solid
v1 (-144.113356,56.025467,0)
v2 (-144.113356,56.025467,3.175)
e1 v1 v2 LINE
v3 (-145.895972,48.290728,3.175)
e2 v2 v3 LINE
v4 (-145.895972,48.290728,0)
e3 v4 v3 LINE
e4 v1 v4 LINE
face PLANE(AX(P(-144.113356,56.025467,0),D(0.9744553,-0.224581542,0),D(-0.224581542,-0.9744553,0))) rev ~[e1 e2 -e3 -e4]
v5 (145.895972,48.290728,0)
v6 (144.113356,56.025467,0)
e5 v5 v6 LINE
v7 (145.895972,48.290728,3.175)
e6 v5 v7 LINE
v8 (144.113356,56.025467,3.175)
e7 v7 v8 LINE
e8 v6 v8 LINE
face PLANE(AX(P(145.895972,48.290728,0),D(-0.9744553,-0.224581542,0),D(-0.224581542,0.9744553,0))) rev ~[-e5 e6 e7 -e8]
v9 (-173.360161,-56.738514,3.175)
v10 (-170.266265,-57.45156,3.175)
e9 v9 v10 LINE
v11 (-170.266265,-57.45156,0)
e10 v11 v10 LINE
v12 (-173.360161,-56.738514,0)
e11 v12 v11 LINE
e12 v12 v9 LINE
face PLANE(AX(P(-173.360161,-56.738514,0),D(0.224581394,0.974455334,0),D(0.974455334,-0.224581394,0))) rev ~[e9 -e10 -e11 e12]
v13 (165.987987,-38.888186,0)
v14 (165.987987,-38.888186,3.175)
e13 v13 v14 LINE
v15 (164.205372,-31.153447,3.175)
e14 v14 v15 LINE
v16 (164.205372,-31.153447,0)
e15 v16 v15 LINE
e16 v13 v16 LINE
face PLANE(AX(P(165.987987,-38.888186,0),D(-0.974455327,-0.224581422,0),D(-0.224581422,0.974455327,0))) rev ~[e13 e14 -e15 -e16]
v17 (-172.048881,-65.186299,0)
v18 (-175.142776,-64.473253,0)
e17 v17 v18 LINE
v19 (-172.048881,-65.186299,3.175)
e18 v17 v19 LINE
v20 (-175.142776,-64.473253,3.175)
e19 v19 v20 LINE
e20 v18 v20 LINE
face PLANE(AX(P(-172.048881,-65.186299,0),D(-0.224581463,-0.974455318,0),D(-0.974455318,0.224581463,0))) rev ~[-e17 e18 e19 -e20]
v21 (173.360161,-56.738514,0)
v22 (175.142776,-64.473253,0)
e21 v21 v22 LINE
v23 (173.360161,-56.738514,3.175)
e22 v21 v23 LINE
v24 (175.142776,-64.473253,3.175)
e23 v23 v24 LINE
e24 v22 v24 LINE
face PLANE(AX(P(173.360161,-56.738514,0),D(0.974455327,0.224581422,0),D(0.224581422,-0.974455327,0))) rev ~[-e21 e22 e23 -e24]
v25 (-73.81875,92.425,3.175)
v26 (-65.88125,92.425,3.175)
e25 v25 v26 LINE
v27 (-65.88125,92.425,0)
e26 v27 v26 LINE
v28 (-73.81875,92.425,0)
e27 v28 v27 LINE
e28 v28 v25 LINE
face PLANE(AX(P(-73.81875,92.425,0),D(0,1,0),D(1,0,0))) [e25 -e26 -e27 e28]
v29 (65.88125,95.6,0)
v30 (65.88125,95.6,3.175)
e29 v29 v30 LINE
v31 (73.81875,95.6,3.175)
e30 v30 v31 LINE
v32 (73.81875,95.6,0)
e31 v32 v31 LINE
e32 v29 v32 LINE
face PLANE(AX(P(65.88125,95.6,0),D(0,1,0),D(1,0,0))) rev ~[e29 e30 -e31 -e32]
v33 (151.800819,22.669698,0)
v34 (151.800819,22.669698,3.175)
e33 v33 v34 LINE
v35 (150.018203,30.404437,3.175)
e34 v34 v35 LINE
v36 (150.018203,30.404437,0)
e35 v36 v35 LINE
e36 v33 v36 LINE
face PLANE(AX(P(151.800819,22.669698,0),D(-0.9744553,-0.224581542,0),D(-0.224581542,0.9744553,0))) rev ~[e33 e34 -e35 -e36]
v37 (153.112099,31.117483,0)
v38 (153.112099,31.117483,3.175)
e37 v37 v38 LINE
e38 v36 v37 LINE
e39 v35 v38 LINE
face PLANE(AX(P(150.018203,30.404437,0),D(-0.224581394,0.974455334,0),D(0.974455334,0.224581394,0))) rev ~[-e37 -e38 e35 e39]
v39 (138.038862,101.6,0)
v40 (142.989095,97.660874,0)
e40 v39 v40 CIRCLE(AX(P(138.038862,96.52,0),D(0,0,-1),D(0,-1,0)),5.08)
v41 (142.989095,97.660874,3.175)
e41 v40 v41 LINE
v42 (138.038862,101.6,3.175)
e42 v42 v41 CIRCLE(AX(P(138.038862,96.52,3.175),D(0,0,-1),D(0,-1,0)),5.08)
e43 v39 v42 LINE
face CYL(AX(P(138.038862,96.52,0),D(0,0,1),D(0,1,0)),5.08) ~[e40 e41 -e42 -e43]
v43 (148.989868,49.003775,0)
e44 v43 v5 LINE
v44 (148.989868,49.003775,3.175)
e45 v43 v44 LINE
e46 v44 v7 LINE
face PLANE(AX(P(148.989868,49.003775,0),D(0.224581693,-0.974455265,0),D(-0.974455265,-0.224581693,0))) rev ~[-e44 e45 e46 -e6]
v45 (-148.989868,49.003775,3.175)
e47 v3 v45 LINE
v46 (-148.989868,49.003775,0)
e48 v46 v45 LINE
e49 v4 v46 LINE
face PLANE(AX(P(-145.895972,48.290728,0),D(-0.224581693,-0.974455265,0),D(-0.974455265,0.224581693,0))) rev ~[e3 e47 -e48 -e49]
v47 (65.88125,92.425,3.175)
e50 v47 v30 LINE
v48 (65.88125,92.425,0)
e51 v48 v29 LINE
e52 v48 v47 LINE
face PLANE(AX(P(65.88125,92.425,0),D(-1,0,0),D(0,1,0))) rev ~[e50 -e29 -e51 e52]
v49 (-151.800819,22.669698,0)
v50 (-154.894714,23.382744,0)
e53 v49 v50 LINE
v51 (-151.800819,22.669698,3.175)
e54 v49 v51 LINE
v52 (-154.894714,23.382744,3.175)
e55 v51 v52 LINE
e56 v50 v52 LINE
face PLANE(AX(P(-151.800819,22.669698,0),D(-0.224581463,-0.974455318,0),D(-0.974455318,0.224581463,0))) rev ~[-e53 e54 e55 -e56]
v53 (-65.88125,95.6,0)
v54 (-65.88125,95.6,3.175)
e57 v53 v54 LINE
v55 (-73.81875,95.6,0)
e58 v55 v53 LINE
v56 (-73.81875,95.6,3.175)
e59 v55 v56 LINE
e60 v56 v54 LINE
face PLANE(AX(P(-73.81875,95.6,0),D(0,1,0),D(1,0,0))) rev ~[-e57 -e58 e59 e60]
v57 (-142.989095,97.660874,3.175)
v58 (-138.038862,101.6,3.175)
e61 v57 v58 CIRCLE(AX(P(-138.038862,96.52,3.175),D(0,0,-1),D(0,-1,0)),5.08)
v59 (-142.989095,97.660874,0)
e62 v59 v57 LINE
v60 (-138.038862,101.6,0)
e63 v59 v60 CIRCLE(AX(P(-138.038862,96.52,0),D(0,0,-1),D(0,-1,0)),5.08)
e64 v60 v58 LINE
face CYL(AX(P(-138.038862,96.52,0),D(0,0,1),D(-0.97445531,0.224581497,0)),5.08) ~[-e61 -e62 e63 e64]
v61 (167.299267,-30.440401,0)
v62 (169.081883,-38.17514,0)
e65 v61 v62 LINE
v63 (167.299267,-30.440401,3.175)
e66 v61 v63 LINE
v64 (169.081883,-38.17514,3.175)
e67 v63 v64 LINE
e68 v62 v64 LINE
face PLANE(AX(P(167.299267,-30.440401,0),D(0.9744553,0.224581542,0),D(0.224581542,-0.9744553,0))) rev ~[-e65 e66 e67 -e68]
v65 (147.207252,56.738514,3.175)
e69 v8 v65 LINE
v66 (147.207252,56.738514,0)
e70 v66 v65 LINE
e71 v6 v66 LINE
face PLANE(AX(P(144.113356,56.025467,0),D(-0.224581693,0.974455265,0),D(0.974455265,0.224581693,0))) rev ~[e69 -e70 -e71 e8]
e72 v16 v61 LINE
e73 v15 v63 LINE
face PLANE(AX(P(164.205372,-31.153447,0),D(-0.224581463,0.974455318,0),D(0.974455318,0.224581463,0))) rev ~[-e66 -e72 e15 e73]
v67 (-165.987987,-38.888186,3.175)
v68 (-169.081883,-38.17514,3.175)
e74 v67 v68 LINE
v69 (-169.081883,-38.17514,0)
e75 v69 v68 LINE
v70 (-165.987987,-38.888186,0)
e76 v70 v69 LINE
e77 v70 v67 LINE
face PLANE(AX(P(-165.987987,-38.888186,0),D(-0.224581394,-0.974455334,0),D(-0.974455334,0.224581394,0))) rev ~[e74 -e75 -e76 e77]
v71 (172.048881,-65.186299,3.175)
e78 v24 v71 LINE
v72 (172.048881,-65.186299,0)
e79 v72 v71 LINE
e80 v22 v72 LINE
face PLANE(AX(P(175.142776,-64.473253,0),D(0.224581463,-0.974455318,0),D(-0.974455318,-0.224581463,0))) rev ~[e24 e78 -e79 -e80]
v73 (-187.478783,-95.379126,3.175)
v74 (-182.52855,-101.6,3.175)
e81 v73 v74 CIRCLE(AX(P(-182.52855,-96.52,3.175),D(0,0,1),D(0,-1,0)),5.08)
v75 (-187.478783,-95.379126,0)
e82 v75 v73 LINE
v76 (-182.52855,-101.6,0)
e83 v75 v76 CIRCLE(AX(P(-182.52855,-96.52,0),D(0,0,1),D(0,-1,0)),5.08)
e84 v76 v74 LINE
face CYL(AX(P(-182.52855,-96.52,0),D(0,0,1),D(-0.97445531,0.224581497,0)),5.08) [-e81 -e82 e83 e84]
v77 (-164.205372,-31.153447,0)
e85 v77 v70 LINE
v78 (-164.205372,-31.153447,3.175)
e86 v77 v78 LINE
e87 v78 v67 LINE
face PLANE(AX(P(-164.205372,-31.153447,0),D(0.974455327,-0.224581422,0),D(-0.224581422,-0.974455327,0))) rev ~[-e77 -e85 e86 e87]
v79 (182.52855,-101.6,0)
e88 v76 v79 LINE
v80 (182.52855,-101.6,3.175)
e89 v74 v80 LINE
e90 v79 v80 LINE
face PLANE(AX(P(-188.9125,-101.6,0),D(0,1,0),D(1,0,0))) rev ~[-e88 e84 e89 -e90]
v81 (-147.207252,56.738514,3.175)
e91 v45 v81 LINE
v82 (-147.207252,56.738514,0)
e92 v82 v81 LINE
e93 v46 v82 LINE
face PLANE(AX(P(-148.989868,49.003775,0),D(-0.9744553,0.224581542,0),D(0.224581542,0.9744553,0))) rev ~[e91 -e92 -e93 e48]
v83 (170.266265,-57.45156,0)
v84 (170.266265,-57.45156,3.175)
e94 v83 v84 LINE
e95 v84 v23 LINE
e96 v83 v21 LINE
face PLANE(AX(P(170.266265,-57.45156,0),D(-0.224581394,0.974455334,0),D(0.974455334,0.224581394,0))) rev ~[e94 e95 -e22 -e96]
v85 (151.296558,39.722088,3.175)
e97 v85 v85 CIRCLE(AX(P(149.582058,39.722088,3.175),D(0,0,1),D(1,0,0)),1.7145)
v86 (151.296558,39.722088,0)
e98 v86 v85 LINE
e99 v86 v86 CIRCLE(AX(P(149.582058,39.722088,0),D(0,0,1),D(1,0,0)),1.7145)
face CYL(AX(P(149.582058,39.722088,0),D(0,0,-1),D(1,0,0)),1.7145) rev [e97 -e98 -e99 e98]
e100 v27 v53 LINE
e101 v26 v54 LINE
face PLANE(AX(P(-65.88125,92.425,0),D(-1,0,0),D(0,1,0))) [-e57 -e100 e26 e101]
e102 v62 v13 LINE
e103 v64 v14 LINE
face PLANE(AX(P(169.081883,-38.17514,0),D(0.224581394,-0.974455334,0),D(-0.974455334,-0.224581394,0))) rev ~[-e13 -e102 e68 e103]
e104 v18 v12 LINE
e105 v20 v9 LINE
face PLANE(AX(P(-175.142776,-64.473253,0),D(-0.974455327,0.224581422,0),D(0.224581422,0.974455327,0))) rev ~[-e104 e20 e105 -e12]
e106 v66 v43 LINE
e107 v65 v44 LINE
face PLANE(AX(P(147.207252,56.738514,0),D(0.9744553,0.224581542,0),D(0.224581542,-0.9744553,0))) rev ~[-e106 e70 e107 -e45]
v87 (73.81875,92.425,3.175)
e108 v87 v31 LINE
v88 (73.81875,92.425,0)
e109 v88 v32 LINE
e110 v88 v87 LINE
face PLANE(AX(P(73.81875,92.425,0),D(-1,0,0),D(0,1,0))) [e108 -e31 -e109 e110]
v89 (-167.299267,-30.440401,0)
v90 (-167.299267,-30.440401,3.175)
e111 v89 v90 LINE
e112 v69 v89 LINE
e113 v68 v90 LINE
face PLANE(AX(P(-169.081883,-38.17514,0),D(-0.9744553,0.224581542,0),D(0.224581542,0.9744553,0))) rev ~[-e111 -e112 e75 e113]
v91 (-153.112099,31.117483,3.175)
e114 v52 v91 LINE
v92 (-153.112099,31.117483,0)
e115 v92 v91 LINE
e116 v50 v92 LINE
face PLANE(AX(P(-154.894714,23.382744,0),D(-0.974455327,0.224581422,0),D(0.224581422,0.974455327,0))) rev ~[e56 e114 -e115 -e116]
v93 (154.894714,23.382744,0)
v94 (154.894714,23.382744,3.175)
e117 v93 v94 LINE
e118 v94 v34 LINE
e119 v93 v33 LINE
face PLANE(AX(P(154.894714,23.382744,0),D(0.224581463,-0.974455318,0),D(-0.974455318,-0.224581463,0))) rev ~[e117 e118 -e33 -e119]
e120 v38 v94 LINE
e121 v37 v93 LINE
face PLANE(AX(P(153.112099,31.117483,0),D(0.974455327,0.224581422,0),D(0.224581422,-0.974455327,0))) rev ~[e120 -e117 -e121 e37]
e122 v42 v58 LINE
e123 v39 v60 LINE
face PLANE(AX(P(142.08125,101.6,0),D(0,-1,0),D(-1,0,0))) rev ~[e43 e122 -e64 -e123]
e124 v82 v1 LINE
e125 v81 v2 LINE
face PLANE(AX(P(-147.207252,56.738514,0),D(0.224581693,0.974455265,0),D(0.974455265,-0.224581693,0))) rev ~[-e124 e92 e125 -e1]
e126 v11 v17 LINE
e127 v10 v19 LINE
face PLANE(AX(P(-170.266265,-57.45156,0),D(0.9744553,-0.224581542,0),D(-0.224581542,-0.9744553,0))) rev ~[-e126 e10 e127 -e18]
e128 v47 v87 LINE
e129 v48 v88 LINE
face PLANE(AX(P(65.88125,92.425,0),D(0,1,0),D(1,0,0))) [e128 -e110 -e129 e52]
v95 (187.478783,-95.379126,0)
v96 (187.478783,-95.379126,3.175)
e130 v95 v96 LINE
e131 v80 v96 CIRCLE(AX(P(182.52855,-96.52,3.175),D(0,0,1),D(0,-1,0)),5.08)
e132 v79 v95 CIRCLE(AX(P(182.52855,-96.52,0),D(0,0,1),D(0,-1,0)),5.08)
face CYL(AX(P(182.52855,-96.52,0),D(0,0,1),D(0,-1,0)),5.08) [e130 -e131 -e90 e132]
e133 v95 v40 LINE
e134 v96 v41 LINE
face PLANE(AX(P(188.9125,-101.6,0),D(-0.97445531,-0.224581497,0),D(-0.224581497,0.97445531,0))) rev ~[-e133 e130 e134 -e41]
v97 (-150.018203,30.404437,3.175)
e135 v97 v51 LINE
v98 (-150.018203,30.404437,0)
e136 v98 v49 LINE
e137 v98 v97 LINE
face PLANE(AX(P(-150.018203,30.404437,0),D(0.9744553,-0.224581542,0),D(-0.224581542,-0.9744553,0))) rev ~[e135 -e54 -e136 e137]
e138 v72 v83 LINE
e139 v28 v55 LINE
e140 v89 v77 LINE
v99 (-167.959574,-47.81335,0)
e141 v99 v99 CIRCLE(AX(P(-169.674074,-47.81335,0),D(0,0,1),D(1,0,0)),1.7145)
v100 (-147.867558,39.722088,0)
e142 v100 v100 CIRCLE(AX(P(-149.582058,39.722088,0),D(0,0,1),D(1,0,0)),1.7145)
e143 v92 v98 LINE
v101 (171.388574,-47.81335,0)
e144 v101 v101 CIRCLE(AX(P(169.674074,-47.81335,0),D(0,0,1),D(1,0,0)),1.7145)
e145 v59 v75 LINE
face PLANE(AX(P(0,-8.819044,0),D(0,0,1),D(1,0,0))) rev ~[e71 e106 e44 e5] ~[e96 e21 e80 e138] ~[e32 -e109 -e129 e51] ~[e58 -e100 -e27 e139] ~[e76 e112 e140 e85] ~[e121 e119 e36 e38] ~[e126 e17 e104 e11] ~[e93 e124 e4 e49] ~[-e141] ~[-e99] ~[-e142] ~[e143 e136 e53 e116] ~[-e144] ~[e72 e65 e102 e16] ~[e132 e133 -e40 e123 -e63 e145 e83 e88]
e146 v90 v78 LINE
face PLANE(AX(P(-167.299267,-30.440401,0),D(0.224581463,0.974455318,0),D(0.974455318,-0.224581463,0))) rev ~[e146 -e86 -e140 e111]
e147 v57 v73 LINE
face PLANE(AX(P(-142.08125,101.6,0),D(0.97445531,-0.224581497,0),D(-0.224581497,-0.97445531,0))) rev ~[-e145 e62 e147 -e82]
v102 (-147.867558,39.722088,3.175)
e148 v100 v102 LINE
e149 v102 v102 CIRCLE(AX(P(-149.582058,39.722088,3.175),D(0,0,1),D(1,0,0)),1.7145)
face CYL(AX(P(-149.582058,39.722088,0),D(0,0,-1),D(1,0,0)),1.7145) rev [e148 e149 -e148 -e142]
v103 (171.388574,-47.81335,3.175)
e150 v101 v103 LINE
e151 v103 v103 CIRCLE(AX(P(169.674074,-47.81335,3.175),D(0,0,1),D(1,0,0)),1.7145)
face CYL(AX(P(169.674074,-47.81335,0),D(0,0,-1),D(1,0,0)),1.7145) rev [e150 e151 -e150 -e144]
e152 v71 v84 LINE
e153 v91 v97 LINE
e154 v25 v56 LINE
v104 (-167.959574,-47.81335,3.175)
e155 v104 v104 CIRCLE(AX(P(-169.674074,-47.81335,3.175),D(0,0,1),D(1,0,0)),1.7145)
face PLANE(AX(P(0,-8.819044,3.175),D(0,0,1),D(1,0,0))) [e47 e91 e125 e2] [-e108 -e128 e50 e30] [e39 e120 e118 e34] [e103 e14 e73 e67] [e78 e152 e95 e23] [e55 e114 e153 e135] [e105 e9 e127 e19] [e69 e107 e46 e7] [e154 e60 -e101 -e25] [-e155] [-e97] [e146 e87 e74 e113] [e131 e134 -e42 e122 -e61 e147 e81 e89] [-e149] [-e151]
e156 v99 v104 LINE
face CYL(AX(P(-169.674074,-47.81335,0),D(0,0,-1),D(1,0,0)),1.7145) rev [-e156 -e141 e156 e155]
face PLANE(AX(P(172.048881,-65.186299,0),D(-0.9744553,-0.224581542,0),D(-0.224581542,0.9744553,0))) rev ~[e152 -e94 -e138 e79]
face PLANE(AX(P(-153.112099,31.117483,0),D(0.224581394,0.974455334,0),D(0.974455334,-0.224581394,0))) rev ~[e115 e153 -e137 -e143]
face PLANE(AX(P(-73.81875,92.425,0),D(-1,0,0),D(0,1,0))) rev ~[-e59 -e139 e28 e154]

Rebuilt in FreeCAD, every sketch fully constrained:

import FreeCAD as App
import Part
import Sketcher
from FreeCAD import Vector
Q = App.Units.Quantity


def edges_at(feature, points):
    """Names of the edges that pass closest to the given points."""
    edges = feature.Shape.Edges
    near = lambda p: min(range(len(edges)), key=lambda i: edges[i].distToShape(Part.Vertex(*p))[0])
    return sorted({f"Edge{near(p) + 1}" for p in points})


def add_polygon(sketch, points):
    """Adds a closed chain of lines whose ends are joined by coincident constraints."""
    first, n = sketch.GeometryCount, len(points)
    for a, b in zip(points, points[1:] + points[:1]):
        sketch.addGeometry(Part.LineSegment(App.Vector(*a, 0), App.Vector(*b, 0)), False)
    for i in range(n):
        sketch.addConstraint(Sketcher.Constraint("Coincident", first + i, 2, first + (i + 1) % n, 1))

doc = App.newDocument("Part")
params = doc.addObject("Spreadsheet::Sheet", "Params")
for row, (alias, value) in enumerate([
    ("sketch1_diameter", "0.135 in"),
    ("sketch1_width", "14.875 in"),
    ("sketch1_width2", "11.1875 in"),
    ("sketch1_width3", "0.3125 in"),
    ("sketch1_height", "0.125 in"),
    ("pad1_length", "0.125 in"),
    ("fillet_radius", "0.2 in"),
], start=1):
    params.set(f"A{row}", alias)
    params.set(f"B{row}", "=" + value)
    params.setAlias(f"B{row}", alias)

body = doc.addObject("PartDesign::Body", "Body")

sketch1 = body.newObject("Sketcher::SketchObject", "Sketch")
sketch1.AttachmentSupport = (doc.getObject("XY_Plane"), [""])
sketch1.MapMode = "FlatFace"
add_polygon(sketch1, [(-142.1, 101.6), (-188.9, -101.6), (188.9, -101.6), (142.1, 101.6)])
add_polygon(sketch1, [(-170.3, -57.5), (-172, -65.2), (-175.1, -64.5), (-173.4, -56.7)])
sketch1.addGeometry(Part.Circle(Vector(-169.7, -47.8, 0), Vector(0, 0, 1), 1.7), False)
add_polygon(sketch1, [(-166, -38.9), (-169.1, -38.2), (-167.3, -30.4), (-164.2, -31.2)])
add_polygon(sketch1, [(175.1, -64.5), (172, -65.2), (170.3, -57.5), (173.4, -56.7)])
sketch1.addGeometry(Part.Circle(Vector(169.7, -47.8, 0), Vector(0, 0, 1), 1.7), False)
add_polygon(sketch1, [(164.2, -31.2), (167.3, -30.4), (169.1, -38.2), (166, -38.9)])
add_polygon(sketch1, [(-153.1, 31.1), (-150, 30.4), (-151.8, 22.7), (-154.9, 23.4)])
sketch1.addGeometry(Part.Circle(Vector(-149.6, 39.7, 0), Vector(0, 0, 1), 1.7), False)
add_polygon(sketch1, [(-144.1, 56), (-145.9, 48.3), (-149, 49), (-147.2, 56.7)])
add_polygon(sketch1, [(-65.9, 92.4), (-73.8, 92.4), (-73.8, 95.6), (-65.9, 95.6)])
add_polygon(sketch1, [(151.8, 22.7), (150, 30.4), (153.1, 31.1), (154.9, 23.4)])
sketch1.addGeometry(Part.Circle(Vector(149.6, 39.7, 0), Vector(0, 0, 1), 1.7), False)
add_polygon(sketch1, [(149, 49), (145.9, 48.3), (144.1, 56), (147.2, 56.7)])
add_polygon(sketch1, [(73.8, 92.4), (65.9, 92.4), (65.9, 95.6), (73.8, 95.6)])
sketch1.addConstraint([
    Sketcher.Constraint("Horizontal", 1),
    Sketcher.Constraint("Horizontal", 3),
    Sketcher.Constraint("Horizontal", 31),
    Sketcher.Constraint("Vertical", 32),
    Sketcher.Constraint("Horizontal", 33),
    Sketcher.Constraint("Vertical", 34),
    Sketcher.Constraint("Horizontal", 44),
    Sketcher.Constraint("Vertical", 45),
    Sketcher.Constraint("Horizontal", 46),
    Sketcher.Constraint("Vertical", 47),
    Sketcher.Constraint("Equal", 8, 17),
    Sketcher.Constraint("Equal", 17, 26),
    Sketcher.Constraint("Equal", 26, 39),
    Sketcher.Constraint("Symmetric", 8, 3, 17, 3, -2),
    Sketcher.Constraint("Symmetric", 26, 3, 39, 3, -2),
    Sketcher.Constraint("Symmetric", 4, 2, 13, 2, -2),
    Sketcher.Constraint("Symmetric", 7, 2, 14, 2, -2),
    Sketcher.Constraint("Symmetric", 6, 2, 15, 2, -2),
    Sketcher.Constraint("Symmetric", 5, 2, 16, 2, -2),
    Sketcher.Constraint("Symmetric", 10, 2, 18, 2, -2),
    Sketcher.Constraint("Symmetric", 9, 2, 19, 2, -2),
    Sketcher.Constraint("Symmetric", 12, 2, 20, 2, -2),
    Sketcher.Constraint("Symmetric", 11, 2, 21, 2, -2),
    Sketcher.Constraint("Symmetric", 22, 2, 35, 2, -2),
    Sketcher.Constraint("Symmetric", 25, 2, 36, 2, -2),
    Sketcher.Constraint("Symmetric", 24, 2, 37, 2, -2),
    Sketcher.Constraint("Symmetric", 23, 2, 38, 2, -2),
    Sketcher.Constraint("Symmetric", 27, 2, 40, 2, -2),
    Sketcher.Constraint("Symmetric", 30, 2, 41, 2, -2),
    Sketcher.Constraint("Symmetric", 29, 2, 42, 2, -2),
    Sketcher.Constraint("Symmetric", 28, 2, 43, 2, -2),
    Sketcher.Constraint("Symmetric", 34, 2, 44, 2, -2),
    Sketcher.Constraint("Symmetric", 32, 2, 46, 2, -2),
    Sketcher.Constraint("Parallel", 0, 4),
    Sketcher.Constraint("Perpendicular", 4, 5),
    Sketcher.Constraint("Perpendicular", 5, 6),
    Sketcher.Constraint("Perpendicular", 6, 7),
    Sketcher.Constraint("Parallel", 7, 9),
    Sketcher.Constraint("Perpendicular", 9, 10),
    Sketcher.Constraint("Perpendicular", 10, 11),
    Sketcher.Constraint("Perpendicular", 11, 12),
    Sketcher.Constraint("Perpendicular", 2, 13),
    Sketcher.Constraint("Perpendicular", 12, 22),
    Sketcher.Constraint("Perpendicular", 22, 23),
    Sketcher.Constraint("Perpendicular", 23, 24),
    Sketcher.Constraint("Perpendicular", 24, 25),
    Sketcher.Constraint("Parallel", 25, 27),
    Sketcher.Constraint("Perpendicular", 27, 28),
    Sketcher.Constraint("Perpendicular", 28, 29),
    Sketcher.Constraint("Perpendicular", 29, 30),
    Sketcher.Constraint("Equal", 7, 9),
    Sketcher.Constraint("Equal", 6, 10),
    Sketcher.Constraint("Equal", 20, 22),
    Sketcher.Constraint("Equal", 21, 23),
    Sketcher.Constraint("Equal", 25, 27),
    Sketcher.Constraint("Equal", 24, 28),
    Sketcher.Constraint("Diameter", 8, Q("0.135 in")),
    Sketcher.Constraint("DistanceY", 0, 2, -1, 1, Q("4 in")),
    Sketcher.Constraint("DistanceY", -1, 1, 2, 2, Q("4 in")),
    Sketcher.Constraint("DistanceX", 3, 2, 33, 2, Q("3 in")),
    Sketcher.Constraint("DistanceX", 44, 2, 2, 2, Q("3 in")),
    Sketcher.Constraint("DistanceX", 1, 1, 1, 2, Q("14.875 in")),
    Sketcher.Constraint("DistanceX", 3, 2, 3, 1, Q("11.1875 in")),
    Sketcher.Constraint("DistanceX", 31, 2, 31, 1, Q("0.3125 in")),
    Sketcher.Constraint("DistanceY", 32, 1, 32, 2, Q("0.125 in")),
    Sketcher.Constraint("Distance", 4, Q("0.3125 in")),
    Sketcher.Constraint("Distance", 5, Q("0.125 in")),
    Sketcher.Constraint("DistanceY", 4, 2, -1, 1, Q("65.186299 mm")),
    Sketcher.Constraint("DistanceY", 10, 2, -1, 1, Q("30.440401 mm")),
    Sketcher.Constraint("DistanceY", -1, 1, 23, 2, Q("22.669698 mm")),
    Sketcher.Constraint("DistanceX", 25, 2, -1, 1, Q("153.112099 mm")),
    Sketcher.Constraint("DistanceY", -1, 1, 31, 2, Q("92.425 mm")),
    Sketcher.Constraint("DistanceY", 6, 2, 26, 3, Q("96.460602 mm")),
    Sketcher.Constraint("DistanceX", 7, 2, 10, 2, Q("2.966998 mm")),
    Sketcher.Constraint("DistanceX", 8, 3, 11, 2, Q("5.468702 mm")),
    Sketcher.Constraint("DistanceX", 26, 3, 30, 2, Q("5.468702 mm")),
    Sketcher.Constraint("DistanceY", 8, 3, -1, 1, Q("47.81335 mm")),
    Sketcher.Constraint("DistanceX", 4, 2, -1, 1, Q("172.048881 mm")),
    Sketcher.Constraint("DistanceX", 27, 2, -1, 1, Q("145.895972 mm")),
    Sketcher.Constraint("DistanceY", 26, 3, 27, 2, Q("8.56864 mm")),
])
sketch1.setExpression("Constraints[100]", "Params.sketch1_diameter")
sketch1.setExpression("Constraints[105]", "Params.sketch1_width")
sketch1.setExpression("Constraints[106]", "Params.sketch1_width2")
sketch1.setExpression("Constraints[107]", "Params.sketch1_width3")
sketch1.setExpression("Constraints[108]", "Params.sketch1_height")
pad1 = body.newObject("PartDesign::Pad", "Pad")
pad1.Profile = sketch1
pad1.setExpression("Length", "Params.pad1_length")
doc.recompute()

fillet = body.newObject("PartDesign::Fillet", "Fillet")
fillet.Base = (pad1, edges_at(pad1, [
    (-142.081, 101.6, 1.587),
    (-188.912, -101.6, 1.587),
    (142.081, 101.6, 1.587),
    (188.912, -101.6, 1.587),
]))
fillet.setExpression("Radius", "Params.fillet_radius")

doc.recompute()
